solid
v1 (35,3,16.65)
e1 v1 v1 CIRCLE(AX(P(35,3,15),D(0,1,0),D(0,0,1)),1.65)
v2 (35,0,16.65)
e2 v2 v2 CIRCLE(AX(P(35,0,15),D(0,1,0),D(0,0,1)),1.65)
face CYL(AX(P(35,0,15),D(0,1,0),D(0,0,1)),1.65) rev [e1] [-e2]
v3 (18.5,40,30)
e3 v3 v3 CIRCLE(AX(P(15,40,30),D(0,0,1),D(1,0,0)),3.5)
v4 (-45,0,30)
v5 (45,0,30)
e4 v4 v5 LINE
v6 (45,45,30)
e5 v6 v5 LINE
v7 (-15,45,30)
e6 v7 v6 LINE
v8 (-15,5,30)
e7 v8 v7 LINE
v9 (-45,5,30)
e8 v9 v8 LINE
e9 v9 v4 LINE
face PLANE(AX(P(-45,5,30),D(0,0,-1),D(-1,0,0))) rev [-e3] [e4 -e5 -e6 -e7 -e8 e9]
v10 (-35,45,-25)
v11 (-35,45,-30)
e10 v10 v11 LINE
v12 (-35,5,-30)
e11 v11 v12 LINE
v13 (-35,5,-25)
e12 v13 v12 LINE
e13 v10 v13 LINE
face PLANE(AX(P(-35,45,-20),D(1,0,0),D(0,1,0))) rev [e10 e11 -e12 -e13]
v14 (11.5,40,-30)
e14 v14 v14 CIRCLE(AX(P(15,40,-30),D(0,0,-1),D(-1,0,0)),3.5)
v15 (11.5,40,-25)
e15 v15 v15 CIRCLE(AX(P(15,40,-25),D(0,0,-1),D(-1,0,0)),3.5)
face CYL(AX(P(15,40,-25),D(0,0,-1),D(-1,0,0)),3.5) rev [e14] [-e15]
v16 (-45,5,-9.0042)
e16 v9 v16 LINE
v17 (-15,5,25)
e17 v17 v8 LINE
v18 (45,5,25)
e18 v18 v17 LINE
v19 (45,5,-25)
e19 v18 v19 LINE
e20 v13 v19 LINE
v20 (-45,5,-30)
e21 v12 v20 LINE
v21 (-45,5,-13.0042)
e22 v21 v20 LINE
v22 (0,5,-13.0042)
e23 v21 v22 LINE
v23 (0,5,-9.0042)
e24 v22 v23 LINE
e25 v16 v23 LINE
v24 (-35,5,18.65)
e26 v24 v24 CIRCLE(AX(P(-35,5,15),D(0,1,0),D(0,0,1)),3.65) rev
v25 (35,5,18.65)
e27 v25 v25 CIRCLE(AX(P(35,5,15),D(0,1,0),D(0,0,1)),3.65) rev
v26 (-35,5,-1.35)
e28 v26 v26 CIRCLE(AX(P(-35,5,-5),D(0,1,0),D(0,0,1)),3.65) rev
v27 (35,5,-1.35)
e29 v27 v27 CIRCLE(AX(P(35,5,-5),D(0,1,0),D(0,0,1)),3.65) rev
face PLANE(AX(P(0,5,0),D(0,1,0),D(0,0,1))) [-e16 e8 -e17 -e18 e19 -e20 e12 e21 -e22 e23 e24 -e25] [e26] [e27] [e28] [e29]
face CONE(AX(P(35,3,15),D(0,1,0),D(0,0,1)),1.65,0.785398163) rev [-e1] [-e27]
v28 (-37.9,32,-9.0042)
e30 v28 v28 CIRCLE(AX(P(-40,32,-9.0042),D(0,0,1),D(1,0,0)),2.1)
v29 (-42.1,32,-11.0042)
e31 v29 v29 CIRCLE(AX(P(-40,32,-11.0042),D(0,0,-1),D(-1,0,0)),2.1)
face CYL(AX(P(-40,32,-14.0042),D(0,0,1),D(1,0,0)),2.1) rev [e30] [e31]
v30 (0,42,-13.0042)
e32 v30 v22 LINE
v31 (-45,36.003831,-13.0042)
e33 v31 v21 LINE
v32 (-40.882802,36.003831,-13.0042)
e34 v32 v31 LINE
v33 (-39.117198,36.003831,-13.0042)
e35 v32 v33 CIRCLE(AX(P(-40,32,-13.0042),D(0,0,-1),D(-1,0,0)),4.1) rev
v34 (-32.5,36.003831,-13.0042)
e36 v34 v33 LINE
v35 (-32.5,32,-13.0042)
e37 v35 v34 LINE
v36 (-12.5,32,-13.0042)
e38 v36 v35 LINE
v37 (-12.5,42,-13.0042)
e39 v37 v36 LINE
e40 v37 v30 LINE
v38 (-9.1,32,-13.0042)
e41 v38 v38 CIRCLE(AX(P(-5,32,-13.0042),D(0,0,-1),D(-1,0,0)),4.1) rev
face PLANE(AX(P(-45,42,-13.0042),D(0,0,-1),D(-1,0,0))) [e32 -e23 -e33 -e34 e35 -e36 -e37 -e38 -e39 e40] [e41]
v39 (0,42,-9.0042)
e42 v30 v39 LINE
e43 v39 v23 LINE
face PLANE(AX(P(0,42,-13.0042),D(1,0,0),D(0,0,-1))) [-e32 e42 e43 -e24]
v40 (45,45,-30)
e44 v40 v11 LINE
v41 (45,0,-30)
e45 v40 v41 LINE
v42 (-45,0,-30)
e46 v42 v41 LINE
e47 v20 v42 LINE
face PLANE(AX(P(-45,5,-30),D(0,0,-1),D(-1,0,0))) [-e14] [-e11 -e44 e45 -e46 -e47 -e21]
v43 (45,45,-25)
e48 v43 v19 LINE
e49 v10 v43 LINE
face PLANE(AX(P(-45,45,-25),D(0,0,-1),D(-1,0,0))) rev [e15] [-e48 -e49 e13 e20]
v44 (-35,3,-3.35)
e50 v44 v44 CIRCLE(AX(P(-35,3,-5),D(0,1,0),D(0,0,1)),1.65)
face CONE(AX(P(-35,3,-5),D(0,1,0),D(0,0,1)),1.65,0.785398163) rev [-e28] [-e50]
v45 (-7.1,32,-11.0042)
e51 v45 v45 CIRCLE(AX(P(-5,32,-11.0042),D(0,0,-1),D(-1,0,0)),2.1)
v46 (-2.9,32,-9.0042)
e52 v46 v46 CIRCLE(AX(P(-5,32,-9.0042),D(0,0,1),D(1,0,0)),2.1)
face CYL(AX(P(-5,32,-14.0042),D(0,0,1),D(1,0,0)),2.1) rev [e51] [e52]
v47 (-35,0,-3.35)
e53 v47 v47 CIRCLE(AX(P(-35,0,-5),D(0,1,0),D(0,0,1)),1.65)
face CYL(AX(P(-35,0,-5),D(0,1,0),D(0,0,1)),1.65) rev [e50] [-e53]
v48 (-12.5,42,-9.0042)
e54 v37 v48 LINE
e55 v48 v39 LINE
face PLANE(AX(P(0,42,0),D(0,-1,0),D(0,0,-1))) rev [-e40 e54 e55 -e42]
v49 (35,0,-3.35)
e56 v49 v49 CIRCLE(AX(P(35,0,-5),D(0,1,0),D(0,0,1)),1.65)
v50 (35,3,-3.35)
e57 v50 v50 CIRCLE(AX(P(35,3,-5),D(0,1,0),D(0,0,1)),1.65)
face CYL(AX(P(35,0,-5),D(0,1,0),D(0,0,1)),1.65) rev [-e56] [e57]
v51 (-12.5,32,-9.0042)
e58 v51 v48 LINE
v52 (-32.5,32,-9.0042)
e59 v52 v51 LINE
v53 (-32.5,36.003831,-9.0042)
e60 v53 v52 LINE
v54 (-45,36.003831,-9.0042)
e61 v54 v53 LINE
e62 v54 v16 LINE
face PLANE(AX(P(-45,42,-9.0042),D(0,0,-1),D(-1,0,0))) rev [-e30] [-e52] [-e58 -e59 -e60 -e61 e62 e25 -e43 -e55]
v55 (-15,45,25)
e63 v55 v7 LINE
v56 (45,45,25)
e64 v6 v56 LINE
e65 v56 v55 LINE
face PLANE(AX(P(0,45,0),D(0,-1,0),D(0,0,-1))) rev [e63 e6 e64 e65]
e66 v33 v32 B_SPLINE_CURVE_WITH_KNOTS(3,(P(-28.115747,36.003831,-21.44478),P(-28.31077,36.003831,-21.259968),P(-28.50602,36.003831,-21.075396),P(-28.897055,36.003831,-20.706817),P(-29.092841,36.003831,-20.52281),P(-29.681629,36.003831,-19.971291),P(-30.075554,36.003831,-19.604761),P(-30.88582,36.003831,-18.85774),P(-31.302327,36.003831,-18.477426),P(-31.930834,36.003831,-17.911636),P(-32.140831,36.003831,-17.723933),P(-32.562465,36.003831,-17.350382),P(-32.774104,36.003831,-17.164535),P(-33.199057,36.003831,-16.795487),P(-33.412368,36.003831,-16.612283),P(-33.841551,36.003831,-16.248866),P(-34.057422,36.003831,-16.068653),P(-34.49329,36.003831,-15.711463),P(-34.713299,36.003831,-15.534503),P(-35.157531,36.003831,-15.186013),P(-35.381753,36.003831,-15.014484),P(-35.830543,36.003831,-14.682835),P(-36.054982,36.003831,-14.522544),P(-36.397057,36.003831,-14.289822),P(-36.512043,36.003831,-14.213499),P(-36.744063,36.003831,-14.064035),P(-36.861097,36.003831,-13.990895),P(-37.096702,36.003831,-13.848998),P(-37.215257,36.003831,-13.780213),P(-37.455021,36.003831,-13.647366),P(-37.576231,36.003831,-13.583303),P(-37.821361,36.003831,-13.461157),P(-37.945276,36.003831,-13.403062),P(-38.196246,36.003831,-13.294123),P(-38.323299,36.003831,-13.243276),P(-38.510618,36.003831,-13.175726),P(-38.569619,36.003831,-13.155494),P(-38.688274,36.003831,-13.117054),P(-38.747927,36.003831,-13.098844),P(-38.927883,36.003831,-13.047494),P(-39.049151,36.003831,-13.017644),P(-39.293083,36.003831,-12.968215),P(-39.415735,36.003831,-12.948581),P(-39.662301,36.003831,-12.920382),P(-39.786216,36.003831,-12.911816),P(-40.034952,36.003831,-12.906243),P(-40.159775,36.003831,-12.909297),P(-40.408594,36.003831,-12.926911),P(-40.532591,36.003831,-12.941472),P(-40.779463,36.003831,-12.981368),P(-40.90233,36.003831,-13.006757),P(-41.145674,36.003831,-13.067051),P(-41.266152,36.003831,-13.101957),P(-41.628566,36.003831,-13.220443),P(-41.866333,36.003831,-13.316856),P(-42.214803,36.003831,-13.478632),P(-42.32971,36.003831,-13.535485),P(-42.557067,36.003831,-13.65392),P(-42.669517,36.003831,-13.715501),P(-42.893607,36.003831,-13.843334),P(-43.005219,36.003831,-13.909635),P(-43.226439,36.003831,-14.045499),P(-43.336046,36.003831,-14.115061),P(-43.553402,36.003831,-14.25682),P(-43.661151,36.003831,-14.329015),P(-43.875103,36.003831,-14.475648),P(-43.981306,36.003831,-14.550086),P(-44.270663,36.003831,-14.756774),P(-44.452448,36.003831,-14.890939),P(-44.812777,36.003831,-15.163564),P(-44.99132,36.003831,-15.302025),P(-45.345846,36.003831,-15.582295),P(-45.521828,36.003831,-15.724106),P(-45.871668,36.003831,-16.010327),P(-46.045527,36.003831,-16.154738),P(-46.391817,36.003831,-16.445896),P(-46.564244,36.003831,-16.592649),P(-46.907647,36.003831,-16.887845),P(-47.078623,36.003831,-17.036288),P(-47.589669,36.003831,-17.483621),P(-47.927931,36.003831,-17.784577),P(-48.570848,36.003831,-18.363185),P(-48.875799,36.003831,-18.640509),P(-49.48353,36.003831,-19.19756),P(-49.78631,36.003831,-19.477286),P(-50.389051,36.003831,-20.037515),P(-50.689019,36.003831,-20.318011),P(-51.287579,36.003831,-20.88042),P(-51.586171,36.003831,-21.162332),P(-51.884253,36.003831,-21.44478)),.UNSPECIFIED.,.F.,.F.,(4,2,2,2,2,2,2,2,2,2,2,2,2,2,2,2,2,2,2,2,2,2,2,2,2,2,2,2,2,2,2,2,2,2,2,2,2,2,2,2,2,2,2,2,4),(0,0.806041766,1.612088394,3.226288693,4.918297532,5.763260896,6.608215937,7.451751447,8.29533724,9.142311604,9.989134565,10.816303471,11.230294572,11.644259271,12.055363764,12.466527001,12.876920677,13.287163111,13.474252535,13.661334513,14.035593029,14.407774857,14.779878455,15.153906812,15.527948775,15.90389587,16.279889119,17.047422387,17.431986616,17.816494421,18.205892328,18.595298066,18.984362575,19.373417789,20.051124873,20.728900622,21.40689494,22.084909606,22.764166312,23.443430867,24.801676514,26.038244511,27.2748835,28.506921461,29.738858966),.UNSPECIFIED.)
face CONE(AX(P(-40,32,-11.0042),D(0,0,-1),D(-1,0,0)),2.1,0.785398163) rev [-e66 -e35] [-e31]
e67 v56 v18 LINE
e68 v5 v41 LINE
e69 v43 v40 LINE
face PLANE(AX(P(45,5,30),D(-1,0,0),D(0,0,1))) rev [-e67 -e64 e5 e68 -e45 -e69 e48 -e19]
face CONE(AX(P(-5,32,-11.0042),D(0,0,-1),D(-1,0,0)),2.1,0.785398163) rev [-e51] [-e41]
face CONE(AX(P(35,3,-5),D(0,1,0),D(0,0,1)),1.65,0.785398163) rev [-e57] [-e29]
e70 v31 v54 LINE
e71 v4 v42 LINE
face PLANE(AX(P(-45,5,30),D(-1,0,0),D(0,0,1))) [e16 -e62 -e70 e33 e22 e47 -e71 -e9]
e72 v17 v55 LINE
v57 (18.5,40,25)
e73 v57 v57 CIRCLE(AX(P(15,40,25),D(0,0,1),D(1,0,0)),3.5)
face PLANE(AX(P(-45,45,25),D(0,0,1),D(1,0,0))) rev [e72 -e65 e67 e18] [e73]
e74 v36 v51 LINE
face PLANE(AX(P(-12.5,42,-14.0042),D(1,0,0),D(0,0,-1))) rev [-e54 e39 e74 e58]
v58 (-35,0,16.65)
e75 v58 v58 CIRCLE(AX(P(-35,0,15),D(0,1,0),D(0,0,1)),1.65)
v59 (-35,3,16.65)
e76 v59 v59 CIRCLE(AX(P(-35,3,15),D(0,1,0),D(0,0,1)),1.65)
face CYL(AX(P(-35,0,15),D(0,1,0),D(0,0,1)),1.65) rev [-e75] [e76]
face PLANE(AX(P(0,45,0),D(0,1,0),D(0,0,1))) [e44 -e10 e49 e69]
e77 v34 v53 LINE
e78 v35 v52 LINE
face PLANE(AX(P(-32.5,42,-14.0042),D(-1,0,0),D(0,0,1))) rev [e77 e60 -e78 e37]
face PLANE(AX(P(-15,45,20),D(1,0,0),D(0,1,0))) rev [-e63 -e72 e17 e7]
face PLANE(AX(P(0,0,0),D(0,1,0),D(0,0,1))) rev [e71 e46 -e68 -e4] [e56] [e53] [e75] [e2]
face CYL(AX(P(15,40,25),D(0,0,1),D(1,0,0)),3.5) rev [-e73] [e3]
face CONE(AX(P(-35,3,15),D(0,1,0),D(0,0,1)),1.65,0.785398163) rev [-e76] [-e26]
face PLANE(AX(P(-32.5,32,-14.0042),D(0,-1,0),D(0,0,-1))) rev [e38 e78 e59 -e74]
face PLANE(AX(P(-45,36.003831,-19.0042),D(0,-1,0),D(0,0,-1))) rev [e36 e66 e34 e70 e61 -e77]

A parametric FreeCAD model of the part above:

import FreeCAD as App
import Part
import Sketcher
from FreeCAD import Vector
Q = App.Units.Quantity


def edges_at(feature, points):
    """Names of the edges that pass closest to the given points."""
    edges = feature.Shape.Edges
    near = lambda p: min(range(len(edges)), key=lambda i: edges[i].distToShape(Part.Vertex(*p))[0])
    return sorted({f"Edge{near(p) + 1}" for p in points})


def add_polygon(sketch, points):
    """Adds a closed chain of lines whose ends are joined by coincident constraints."""
    first, n = sketch.GeometryCount, len(points)
    for a, b in zip(points, points[1:] + points[:1]):
        sketch.addGeometry(Part.LineSegment(App.Vector(*a, 0), App.Vector(*b, 0)), False)
    for i in range(n):
        sketch.addConstraint(Sketcher.Constraint("Coincident", first + i, 2, first + (i + 1) % n, 1))

doc = App.newDocument("Part")
body = doc.addObject("PartDesign::Body", "Body")

# Sketch on XZ plane
sketch1 = body.newObject("Sketcher::SketchObject", "Sketch")
sketch1.AttachmentSupport = (doc.getObject("XZ_Plane"), [""])
sketch1.MapMode = "FlatFace"
add_polygon(sketch1, [(-45, -30), (-45, 30), (45, 30), (45, -30)])  # lines 0-3
sketch1.addConstraint([
    Sketcher.Constraint("Vertical", 0),
    Sketcher.Constraint("Horizontal", 1),
    Sketcher.Constraint("Vertical", 2),
    Sketcher.Constraint("Horizontal", 3),
    Sketcher.Constraint("Symmetric", 0, 2, 2, 2, -1, 1),
    Sketcher.Constraint("DistanceX", 1, 1, 1, 2, Q("90 mm")),
    Sketcher.Constraint("DistanceY", 0, 1, 0, 2, Q("60 mm")),
])
pad1 = body.newObject("PartDesign::Pad", "Pad")
pad1.Profile = sketch1
pad1.Length = 5
pad1.Reversed = True

# Sketch on XZ plane
sketch2 = body.newObject("Sketcher::SketchObject", "Sketch001")
sketch2.AttachmentSupport = (doc.getObject("XZ_Plane"), [""])
sketch2.MapMode = "FlatFace"
sketch2.AttachmentOffset = App.Placement(Vector(0, 0, -5), App.Rotation())
add_polygon(sketch2, [(-45, -30), (-45, -25), (45, -25), (45, -30)])  # lines 0-3
add_polygon(sketch2, [(-45, 25), (-45, 30), (45, 30), (45, 25)])  # lines 4-7
sketch2.addConstraint([
    Sketcher.Constraint("Vertical", 0),
    Sketcher.Constraint("Horizontal", 1),
    Sketcher.Constraint("Vertical", 2),
    Sketcher.Constraint("Horizontal", 3),
    Sketcher.Constraint("Vertical", 4),
    Sketcher.Constraint("Horizontal", 5),
    Sketcher.Constraint("Vertical", 6),
    Sketcher.Constraint("Horizontal", 7),
    Sketcher.Constraint("Symmetric", 2, 2, 4, 2, -1, 1),
    Sketcher.Constraint("Symmetric", 0, 2, 6, 2, -1, 1),
    Sketcher.Constraint("Vertical", 3, 2, 4, 2),
    Sketcher.Constraint("DistanceX", 1, 1, 1, 2, Q("90 mm")),
    Sketcher.Constraint("DistanceY", 0, 1, 0, 2, Q("5 mm")),
    Sketcher.Constraint("DistanceY", 0, 2, -1, 1, Q("25 mm")),
])
pad2 = body.newObject("PartDesign::Pad", "Pad001")
pad2.Profile = sketch2
pad2.Length = 40
pad2.Reversed = True

# Sketch on XZ plane
sketch3 = body.newObject("Sketcher::SketchObject", "Sketch002")
sketch3.AttachmentSupport = (doc.getObject("XZ_Plane"), [""])
sketch3.MapMode = "FlatFace"
sketch3.AttachmentOffset = App.Placement(Vector(0, 0, -5), App.Rotation())
add_polygon(sketch3, [(-45, -13.0042), (-45, -9.0042), (0, -9.0042), (0, -13.0042)])  # lines 0-3
sketch3.addConstraint([
    Sketcher.Constraint("Vertical", 0),
    Sketcher.Constraint("Horizontal", 1),
    Sketcher.Constraint("Vertical", 2),
    Sketcher.Constraint("Horizontal", 3),
    Sketcher.Constraint("PointOnObject", 1, 2, -2),
    Sketcher.Constraint("DistanceX", 1, 1, 1, 2, Q("45 mm")),
    Sketcher.Constraint("DistanceY", 0, 1, 0, 2, Q("4 mm")),
    Sketcher.Constraint("DistanceY", 0, 2, -1, 1, Q("9.0042 mm")),
])
pad3 = body.newObject("PartDesign::Pad", "Pad002")
pad3.Profile = sketch3
pad3.Length = 37
pad3.Reversed = True

# Sketch on XY plane
sketch4 = body.newObject("Sketcher::SketchObject", "Sketch003")
sketch4.AttachmentSupport = (doc.getObject("XY_Plane"), [""])
sketch4.MapMode = "FlatFace"
sketch4.AttachmentOffset = App.Placement(Vector(0, 0, -9.0042), App.Rotation())
sketch4.addGeometry(Part.Circle(Vector(-40, 32, 0), Vector(0, 0, 1), 2.1), False)  # 0
sketch4.addGeometry(Part.Circle(Vector(-5, 32, 0), Vector(0, 0, 1), 2.1), False)  # 1
add_polygon(sketch4, [(-32.5, 42), (-32.5, 32), (-12.5, 32), (-12.5, 42)])  # lines 2-5
sketch4.addConstraint([
    Sketcher.Constraint("Vertical", 2),
    Sketcher.Constraint("Horizontal", 3),
    Sketcher.Constraint("Vertical", 4),
    Sketcher.Constraint("Horizontal", 5),
    Sketcher.Constraint("Equal", 0, 1),
    Sketcher.Constraint("Horizontal", 0, 3, 1, 3),
    Sketcher.Constraint("Horizontal", 1, 3, 2, 2),
    Sketcher.Constraint("Diameter", 0, Q("4.2 mm")),
    Sketcher.Constraint("DistanceX", 3, 1, 3, 2, Q("20 mm")),
    Sketcher.Constraint("DistanceY", 2, 2, 2, 1, Q("10 mm")),
    Sketcher.Constraint("DistanceX", 0, 3, -1, 1, Q("40 mm")),
    Sketcher.Constraint("DistanceY", -1, 1, 0, 3, Q("32 mm")),
    Sketcher.Constraint("DistanceX", 1, 3, -1, 1, Q("5 mm")),
    Sketcher.Constraint("DistanceX", 2, 2, -1, 1, Q("32.5 mm")),
])
pocket1 = body.newObject("PartDesign::Pocket", "Pocket")
pocket1.Profile = sketch4
pocket1.Length = 5
doc.recompute()

chamfer = body.newObject("PartDesign::Chamfer", "Chamfer")
chamfer.Base = (pocket1, edges_at(pocket1, [(-42.1, 32, -13.004)]))
chamfer.Size = 2
doc.recompute()

chamfer2 = body.newObject("PartDesign::Chamfer", "Chamfer001")
chamfer2.Base = (chamfer, edges_at(chamfer, [(-7.1, 32, -13.004)]))
chamfer2.Size = 2

# Sketch on XY plane
sketch5 = body.newObject("Sketcher::SketchObject", "Sketch004")
sketch5.AttachmentSupport = (doc.getObject("XY_Plane"), [""])
sketch5.MapMode = "FlatFace"
sketch5.AttachmentOffset = App.Placement(Vector(0, 0, -30), App.Rotation())
sketch5.addGeometry(Part.Circle(Vector(15, 40, 0), Vector(0, 0, 1), 3.5), False)
sketch5.addConstraint([
    Sketcher.Constraint("Diameter", 0, Q("7 mm")),
    Sketcher.Constraint("DistanceX", -1, 1, 0, 3, Q("15 mm")),
    Sketcher.Constraint("DistanceY", -1, 1, 0, 3, Q("40 mm")),
])
pocket2 = body.newObject("PartDesign::Pocket", "Pocket001")
pocket2.Profile = sketch5
pocket2.Length = 5
pocket2.Reversed = True

# Sketch on XY plane
sketch6 = body.newObject("Sketcher::SketchObject", "Sketch005")
sketch6.AttachmentSupport = (doc.getObject("XY_Plane"), [""])
sketch6.MapMode = "FlatFace"
sketch6.AttachmentOffset = App.Placement(Vector(0, 0, 25), App.Rotation())
sketch6.addGeometry(Part.Circle(Vector(15, 40, 0), Vector(0, 0, 1), 3.5), False)
sketch6.addConstraint([
    Sketcher.Constraint("Diameter", 0, Q("7 mm")),
    Sketcher.Constraint("DistanceX", -1, 1, 0, 3, Q("15 mm")),
    Sketcher.Constraint("DistanceY", -1, 1, 0, 3, Q("40 mm")),
])
pocket3 = body.newObject("PartDesign::Pocket", "Pocket002")
pocket3.Profile = sketch6
pocket3.Length = 5
pocket3.Reversed = True

# Sketch on XZ plane
sketch7 = body.newObject("Sketcher::SketchObject", "Sketch006")
sketch7.AttachmentSupport = (doc.getObject("XZ_Plane"), [""])
sketch7.MapMode = "FlatFace"
sketch7.AttachmentOffset = App.Placement(Vector(0, 0, -5), App.Rotation())
sketch7.addGeometry([
    Part.Circle(Vector(35, -5, 0), Vector(0, 0, 1), 1.65),
    Part.Circle(Vector(35, 15, 0), Vector(0, 0, 1), 1.65),
    Part.Circle(Vector(-35, 15, 0), Vector(0, 0, 1), 1.65),
    Part.Circle(Vector(-35, -5, 0), Vector(0, 0, 1), 1.65),
], False)
sketch7.addConstraint([
    Sketcher.Constraint("Equal", 0, 1),
    Sketcher.Constraint("Equal", 1, 2),
    Sketcher.Constraint("Equal", 2, 3),
    Sketcher.Constraint("Symmetric", 1, 3, 2, 3, -2),
    Sketcher.Constraint("Symmetric", 0, 3, 3, 3, -2),
    Sketcher.Constraint("Vertical", 0, 3, 1, 3),
    Sketcher.Constraint("Diameter", 0, Q("3.3 mm")),
    Sketcher.Constraint("DistanceX", -1, 1, 0, 3, Q("35 mm")),
    Sketcher.Constraint("DistanceY", 0, 3, -1, 1, Q("5 mm")),
    Sketcher.Constraint("DistanceY", -1, 1, 1, 3, Q("15 mm")),
])
pocket4 = body.newObject("PartDesign::Pocket", "Pocket003")
pocket4.Profile = sketch7
pocket4.Length = 5
pocket4.Reversed = True
doc.recompute()

chamfer3 = body.newObject("PartDesign::Chamfer", "Chamfer002")
chamfer3.Base = (pocket4, edges_at(pocket4, [
    (-35, 5, -6.65),
    (-35, 5, 13.35),
    (35, 5, 13.35),
    (35, 5, -6.65),
]))
chamfer3.Size = 2

# Sketch on XY plane
sketch8 = body.newObject("Sketcher::SketchObject", "Sketch007")
sketch8.AttachmentSupport = (doc.getObject("XY_Plane"), [""])
sketch8.MapMode = "FlatFace"
sketch8.AttachmentOffset = App.Placement(Vector(0, 0, 30), App.Rotation())
add_polygon(sketch8, [(-45, 45), (-45, 5), (-15, 5), (-15, 45)])  # lines 0-3
sketch8.addConstraint([
    Sketcher.Constraint("Vertical", 0),
    Sketcher.Constraint("Horizontal", 1),
    Sketcher.Constraint("Vertical", 2),
    Sketcher.Constraint("Horizontal", 3),
    Sketcher.Constraint("DistanceX", 1, 1, 1, 2, Q("30 mm")),
    Sketcher.Constraint("DistanceY", 0, 2, 0, 1, Q("40 mm")),
    Sketcher.Constraint("DistanceX", 0, 2, -1, 1, Q("45 mm")),
    Sketcher.Constraint("DistanceY", -1, 1, 0, 2, Q("5 mm")),
])
pocket5 = body.newObject("PartDesign::Pocket", "Pocket004")
pocket5.Profile = sketch8
pocket5.Length = 10

# Sketch on XY plane
sketch9 = body.newObject("Sketcher::SketchObject", "Sketch008")
sketch9.AttachmentSupport = (doc.getObject("XY_Plane"), [""])
sketch9.MapMode = "FlatFace"
sketch9.AttachmentOffset = App.Placement(Vector(0, 0, -9.0042), App.Rotation())
add_polygon(sketch9, [(-45, 42), (-45, 36.003831), (-32.5, 36.003831), (-32.5, 42)])  # lines 0-3
sketch9.addConstraint([
    Sketcher.Constraint("Vertical", 0),
    Sketcher.Constraint("Horizontal", 1),
    Sketcher.Constraint("Vertical", 2),
    Sketcher.Constraint("Horizontal", 3),
    Sketcher.Constraint("DistanceX", 1, 1, 1, 2, Q("12.5 mm")),
    Sketcher.Constraint("DistanceX", 0, 2, -1, 1, Q("45 mm")),
    Sketcher.Constraint("DistanceY", -1, 1, 2, 2, Q("42 mm")),
    Sketcher.Constraint("DistanceY", 0, 2, 0, 1, Q("5.996169 mm")),
])
pocket6 = body.newObject("PartDesign::Pocket", "Pocket005")
pocket6.Profile = sketch9
pocket6.Length = 10

# Sketch on XY plane
sketch10 = body.newObject("Sketcher::SketchObject", "Sketch009")
sketch10.AttachmentSupport = (doc.getObject("XY_Plane"), [""])
sketch10.MapMode = "FlatFace"
sketch10.AttachmentOffset = App.Placement(Vector(0, 0, -30), App.Rotation())
add_polygon(sketch10, [(-35, 45), (-35, 5), (-45, 5), (-45, 45)])  # lines 0-3
sketch10.addConstraint([
    Sketcher.Constraint("Vertical", 0),
    Sketcher.Constraint("Horizontal", 1),
    Sketcher.Constraint("Vertical", 2),
    Sketcher.Constraint("Horizontal", 3),
    Sketcher.Constraint("DistanceX", 1, 2, 1, 1, Q("10 mm")),
    Sketcher.Constraint("DistanceY", 0, 2, 0, 1, Q("40 mm")),
    Sketcher.Constraint("DistanceX", 0, 2, -1, 1, Q("35 mm")),
    Sketcher.Constraint("DistanceY", -1, 1, 0, 2, Q("5 mm")),
])
pocket7 = body.newObject("PartDesign::Pocket", "Pocket006")
pocket7.Profile = sketch10
pocket7.Length = 10
pocket7.Reversed = True

doc.recompute()
